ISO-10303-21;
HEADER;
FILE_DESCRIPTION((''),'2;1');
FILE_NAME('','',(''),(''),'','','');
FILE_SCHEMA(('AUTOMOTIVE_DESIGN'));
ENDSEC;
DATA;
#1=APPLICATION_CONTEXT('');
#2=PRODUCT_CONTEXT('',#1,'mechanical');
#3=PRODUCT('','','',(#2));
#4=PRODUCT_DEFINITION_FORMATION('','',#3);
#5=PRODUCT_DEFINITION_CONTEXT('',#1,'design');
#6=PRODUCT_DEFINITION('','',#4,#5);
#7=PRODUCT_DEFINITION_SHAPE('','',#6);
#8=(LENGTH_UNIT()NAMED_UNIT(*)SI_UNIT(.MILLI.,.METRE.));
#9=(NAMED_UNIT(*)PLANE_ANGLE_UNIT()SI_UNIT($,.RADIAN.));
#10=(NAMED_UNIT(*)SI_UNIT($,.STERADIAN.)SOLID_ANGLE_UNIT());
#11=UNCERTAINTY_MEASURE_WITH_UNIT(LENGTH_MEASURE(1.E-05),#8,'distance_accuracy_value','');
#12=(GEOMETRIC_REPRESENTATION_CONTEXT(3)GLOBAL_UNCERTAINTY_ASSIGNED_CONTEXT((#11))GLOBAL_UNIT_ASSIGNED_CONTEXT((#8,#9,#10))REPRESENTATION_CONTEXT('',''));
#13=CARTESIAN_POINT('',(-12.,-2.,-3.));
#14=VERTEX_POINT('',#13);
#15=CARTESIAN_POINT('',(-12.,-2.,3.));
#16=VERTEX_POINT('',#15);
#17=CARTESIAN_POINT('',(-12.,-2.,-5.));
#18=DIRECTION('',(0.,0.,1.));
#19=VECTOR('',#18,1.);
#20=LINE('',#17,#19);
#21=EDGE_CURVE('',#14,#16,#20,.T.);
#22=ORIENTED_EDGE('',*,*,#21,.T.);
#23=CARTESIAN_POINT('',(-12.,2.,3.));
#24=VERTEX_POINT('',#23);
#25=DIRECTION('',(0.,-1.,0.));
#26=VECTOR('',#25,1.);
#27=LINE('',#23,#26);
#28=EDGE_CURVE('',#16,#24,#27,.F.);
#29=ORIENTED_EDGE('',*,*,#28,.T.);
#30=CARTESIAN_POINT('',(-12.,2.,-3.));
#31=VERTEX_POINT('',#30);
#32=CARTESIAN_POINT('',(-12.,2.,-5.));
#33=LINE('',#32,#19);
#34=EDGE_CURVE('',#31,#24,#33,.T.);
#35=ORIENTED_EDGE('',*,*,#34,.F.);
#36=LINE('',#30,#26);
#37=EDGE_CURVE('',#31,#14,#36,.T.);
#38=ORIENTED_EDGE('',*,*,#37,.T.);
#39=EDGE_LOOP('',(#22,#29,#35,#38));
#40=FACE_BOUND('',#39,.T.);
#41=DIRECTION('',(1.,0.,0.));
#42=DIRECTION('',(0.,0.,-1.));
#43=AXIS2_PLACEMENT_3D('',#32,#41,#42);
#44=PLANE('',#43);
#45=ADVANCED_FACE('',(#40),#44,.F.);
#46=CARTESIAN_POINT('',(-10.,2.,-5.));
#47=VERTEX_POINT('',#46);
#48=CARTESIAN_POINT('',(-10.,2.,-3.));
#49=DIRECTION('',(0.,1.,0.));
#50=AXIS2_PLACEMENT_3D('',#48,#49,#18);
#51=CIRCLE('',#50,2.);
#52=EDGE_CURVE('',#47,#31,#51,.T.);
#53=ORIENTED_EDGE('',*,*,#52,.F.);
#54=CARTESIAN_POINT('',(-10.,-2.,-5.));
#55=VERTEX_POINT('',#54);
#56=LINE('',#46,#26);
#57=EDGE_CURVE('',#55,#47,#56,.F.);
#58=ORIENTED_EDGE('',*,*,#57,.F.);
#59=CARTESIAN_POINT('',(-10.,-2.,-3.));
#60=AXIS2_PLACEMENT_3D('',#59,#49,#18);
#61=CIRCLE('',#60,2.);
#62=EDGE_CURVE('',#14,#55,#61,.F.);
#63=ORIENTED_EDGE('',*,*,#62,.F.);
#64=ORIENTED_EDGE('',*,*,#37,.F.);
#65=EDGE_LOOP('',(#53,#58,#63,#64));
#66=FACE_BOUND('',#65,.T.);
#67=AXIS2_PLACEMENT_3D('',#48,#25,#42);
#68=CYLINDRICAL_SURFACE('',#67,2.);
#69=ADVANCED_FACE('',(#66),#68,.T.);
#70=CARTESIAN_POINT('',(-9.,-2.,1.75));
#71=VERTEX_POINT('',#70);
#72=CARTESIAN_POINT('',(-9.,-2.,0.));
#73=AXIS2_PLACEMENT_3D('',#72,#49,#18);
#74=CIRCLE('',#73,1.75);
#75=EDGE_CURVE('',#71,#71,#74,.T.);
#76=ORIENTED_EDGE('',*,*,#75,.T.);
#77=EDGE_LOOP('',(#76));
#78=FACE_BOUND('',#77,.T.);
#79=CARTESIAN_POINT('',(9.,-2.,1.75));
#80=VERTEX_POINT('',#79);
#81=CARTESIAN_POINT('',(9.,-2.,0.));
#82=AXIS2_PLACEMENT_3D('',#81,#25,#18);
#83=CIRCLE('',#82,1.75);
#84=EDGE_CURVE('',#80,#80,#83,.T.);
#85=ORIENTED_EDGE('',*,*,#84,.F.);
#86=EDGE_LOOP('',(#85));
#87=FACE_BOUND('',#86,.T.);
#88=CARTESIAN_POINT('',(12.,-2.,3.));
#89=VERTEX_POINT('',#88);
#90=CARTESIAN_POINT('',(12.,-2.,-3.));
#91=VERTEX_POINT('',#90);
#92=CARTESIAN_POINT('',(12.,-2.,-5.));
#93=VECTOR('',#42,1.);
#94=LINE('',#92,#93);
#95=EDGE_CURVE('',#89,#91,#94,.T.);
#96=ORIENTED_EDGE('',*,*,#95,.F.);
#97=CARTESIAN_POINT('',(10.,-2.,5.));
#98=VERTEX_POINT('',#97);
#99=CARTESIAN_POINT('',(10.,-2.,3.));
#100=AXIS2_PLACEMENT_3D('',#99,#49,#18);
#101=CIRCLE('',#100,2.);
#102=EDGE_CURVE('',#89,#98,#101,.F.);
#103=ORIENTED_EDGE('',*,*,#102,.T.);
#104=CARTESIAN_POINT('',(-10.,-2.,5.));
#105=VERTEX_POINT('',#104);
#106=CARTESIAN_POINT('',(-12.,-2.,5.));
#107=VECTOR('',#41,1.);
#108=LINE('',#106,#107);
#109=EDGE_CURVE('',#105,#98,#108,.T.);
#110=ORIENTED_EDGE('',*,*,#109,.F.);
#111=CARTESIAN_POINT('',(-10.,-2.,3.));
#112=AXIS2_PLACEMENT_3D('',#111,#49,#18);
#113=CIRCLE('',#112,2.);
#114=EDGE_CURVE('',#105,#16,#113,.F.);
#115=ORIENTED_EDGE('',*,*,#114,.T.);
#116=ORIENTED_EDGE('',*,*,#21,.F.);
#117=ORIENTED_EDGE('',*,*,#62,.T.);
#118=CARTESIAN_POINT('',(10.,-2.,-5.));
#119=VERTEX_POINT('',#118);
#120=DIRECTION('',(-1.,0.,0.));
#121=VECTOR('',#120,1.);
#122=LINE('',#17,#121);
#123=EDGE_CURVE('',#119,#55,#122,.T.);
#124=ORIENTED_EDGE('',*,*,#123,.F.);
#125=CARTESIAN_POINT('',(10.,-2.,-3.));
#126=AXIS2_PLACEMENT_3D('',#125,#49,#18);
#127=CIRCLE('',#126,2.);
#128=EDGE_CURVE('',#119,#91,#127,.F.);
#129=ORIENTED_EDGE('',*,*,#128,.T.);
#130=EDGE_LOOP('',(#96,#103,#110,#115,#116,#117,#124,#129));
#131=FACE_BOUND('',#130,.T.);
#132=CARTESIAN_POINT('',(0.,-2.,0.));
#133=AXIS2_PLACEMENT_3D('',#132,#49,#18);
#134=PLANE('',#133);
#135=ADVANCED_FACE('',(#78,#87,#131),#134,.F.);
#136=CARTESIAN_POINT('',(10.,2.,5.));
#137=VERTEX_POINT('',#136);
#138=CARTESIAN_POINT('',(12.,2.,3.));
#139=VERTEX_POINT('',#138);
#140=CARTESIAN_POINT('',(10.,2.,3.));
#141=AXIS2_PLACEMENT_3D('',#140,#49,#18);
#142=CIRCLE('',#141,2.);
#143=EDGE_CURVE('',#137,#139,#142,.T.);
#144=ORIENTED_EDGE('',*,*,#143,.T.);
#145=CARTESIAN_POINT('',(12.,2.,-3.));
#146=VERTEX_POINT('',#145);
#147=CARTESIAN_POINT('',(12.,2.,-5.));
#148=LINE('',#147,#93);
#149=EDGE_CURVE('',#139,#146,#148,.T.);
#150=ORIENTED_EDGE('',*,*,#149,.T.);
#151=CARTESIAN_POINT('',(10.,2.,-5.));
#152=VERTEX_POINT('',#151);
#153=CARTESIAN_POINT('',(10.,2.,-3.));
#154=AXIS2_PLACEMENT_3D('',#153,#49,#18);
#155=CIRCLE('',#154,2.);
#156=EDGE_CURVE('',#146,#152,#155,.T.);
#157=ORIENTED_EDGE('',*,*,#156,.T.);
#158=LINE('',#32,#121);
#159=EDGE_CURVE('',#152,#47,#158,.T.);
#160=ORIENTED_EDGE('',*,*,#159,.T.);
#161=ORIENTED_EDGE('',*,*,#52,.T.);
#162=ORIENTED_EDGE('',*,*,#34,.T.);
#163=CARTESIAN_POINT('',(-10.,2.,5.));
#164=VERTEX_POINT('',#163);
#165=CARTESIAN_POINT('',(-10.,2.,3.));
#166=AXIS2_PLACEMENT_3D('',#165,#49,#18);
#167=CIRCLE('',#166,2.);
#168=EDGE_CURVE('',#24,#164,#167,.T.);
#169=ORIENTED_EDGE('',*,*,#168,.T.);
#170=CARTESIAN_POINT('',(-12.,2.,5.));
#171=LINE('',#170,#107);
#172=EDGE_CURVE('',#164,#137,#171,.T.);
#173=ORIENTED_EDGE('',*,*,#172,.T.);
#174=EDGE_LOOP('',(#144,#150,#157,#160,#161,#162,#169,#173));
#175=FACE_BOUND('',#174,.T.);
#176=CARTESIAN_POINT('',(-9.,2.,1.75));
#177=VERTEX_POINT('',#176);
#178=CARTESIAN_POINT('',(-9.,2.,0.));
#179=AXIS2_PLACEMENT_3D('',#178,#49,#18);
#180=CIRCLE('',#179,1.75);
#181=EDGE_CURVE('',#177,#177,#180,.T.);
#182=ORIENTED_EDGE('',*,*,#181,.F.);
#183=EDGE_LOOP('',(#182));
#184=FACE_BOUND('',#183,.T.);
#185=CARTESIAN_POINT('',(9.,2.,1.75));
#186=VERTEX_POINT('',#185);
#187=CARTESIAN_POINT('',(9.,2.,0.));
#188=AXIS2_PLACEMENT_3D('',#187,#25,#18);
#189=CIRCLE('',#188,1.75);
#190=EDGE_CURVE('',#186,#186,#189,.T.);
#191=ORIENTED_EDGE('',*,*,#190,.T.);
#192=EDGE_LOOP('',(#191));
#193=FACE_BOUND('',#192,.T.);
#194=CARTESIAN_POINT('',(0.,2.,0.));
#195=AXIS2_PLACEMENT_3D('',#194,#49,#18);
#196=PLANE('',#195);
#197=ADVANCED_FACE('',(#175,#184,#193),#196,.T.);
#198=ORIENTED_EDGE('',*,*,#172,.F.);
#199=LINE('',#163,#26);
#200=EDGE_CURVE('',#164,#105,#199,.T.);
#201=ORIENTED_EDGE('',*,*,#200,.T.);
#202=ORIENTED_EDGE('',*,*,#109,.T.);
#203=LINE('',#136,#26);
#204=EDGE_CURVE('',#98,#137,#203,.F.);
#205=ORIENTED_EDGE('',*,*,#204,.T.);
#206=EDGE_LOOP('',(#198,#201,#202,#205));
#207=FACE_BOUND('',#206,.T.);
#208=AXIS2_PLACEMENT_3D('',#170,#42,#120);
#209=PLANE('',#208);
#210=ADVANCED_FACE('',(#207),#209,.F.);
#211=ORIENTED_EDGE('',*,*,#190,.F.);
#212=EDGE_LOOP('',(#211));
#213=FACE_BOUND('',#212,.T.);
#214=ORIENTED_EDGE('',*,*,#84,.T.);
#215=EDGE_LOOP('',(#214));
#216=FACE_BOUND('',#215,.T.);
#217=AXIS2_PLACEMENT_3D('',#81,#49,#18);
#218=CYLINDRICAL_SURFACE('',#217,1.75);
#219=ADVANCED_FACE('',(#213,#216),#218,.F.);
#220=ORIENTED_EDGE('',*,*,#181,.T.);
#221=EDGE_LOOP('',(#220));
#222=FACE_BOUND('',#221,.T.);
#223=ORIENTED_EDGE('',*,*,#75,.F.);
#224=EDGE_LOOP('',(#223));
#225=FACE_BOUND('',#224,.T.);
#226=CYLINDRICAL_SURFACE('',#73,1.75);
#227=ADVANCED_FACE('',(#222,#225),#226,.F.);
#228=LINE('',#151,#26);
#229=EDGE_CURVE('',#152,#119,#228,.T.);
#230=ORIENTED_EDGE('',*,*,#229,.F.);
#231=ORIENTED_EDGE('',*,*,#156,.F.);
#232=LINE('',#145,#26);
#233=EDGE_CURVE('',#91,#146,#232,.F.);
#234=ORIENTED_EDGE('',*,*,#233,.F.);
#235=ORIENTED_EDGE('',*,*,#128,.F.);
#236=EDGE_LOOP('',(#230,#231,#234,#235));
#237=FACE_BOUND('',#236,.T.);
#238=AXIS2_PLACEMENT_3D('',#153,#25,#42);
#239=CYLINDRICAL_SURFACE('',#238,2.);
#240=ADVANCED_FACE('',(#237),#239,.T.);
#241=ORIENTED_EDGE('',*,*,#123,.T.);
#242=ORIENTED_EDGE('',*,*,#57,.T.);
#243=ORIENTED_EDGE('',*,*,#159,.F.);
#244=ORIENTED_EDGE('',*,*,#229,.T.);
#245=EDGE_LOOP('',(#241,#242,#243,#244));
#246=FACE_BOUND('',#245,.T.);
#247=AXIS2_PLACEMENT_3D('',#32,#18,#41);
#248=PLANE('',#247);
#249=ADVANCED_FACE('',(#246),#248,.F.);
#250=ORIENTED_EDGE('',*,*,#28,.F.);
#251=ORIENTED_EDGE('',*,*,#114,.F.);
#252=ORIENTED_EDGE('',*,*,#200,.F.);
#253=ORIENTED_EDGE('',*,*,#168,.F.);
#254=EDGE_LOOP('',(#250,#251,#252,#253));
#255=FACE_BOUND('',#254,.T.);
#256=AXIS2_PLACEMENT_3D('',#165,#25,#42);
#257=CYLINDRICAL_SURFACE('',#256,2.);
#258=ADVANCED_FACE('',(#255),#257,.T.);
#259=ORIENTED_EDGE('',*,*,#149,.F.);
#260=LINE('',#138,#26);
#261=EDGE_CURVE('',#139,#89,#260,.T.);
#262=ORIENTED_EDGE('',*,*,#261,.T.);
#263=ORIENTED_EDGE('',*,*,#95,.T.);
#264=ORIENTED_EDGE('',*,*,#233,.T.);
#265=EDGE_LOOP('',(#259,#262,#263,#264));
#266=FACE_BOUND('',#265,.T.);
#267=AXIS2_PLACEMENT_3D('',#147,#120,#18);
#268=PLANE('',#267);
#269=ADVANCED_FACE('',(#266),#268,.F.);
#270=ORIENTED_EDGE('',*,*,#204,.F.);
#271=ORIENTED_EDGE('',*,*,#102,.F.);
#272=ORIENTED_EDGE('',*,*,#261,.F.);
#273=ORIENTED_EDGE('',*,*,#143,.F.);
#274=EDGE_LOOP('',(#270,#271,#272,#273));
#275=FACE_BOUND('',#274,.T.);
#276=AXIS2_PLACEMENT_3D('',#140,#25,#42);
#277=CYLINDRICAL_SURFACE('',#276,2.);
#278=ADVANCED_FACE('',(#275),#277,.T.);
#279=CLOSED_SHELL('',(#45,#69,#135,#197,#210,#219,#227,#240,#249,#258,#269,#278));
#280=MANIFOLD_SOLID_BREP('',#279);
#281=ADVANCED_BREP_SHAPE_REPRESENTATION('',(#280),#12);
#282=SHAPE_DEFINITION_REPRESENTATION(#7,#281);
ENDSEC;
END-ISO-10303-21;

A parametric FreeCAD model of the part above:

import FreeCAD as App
import Part
import Sketcher

V = App.Vector
Q = App.Units.Quantity


def edges_at(feature, points):
    """Names of the edges that pass closest to the given points."""
    edges = feature.Shape.Edges
    near = lambda p: min(range(len(edges)), key=lambda i: edges[i].distToShape(Part.Vertex(*p))[0])
    return sorted({f"Edge{near(p) + 1}" for p in points})


def add_polygon(sketch, points):
    """Adds a closed chain of lines whose ends are joined by coincident constraints."""
    first, n = sketch.GeometryCount, len(points)
    for a, b in zip(points, points[1:] + points[:1]):
        sketch.addGeometry(Part.LineSegment(App.Vector(*a, 0), App.Vector(*b, 0)), False)
    for i in range(n):
        sketch.addConstraint(Sketcher.Constraint("Coincident", first + i, 2, first + (i + 1) % n, 1))

doc = App.newDocument("Part")
body = doc.addObject("PartDesign::Body", "Body")

# Sketch on XZ plane
sketch1 = body.newObject("Sketcher::SketchObject", "Sketch")
sketch1.AttachmentSupport = (doc.getObject("XZ_Plane"), [""])
sketch1.MapMode = "FlatFace"
add_polygon(sketch1, [(-12, -5), (-12, 5), (12, 5), (12, -5)])  # lines 0-3
sketch1.addConstraint(Sketcher.Constraint("Vertical", 0))
sketch1.addConstraint(Sketcher.Constraint("Horizontal", 1))
sketch1.addConstraint(Sketcher.Constraint("Vertical", 2))
sketch1.addConstraint(Sketcher.Constraint("Horizontal", 3))
sketch1.addConstraint(Sketcher.Constraint("Symmetric", 0, 2, 2, 2, -1, 1))
sketch1.addConstraint(Sketcher.Constraint("DistanceX", 1, 1, 1, 2, Q("24 mm")))
sketch1.addConstraint(Sketcher.Constraint("DistanceY", 0, 1, 0, 2, Q("10 mm")))
pad1 = body.newObject("PartDesign::Pad", "Pad")
pad1.Profile = sketch1
pad1.Length = 4
pad1.Midplane = True

# Sketch on XZ plane
sketch2 = body.newObject("Sketcher::SketchObject", "Sketch001")
sketch2.AttachmentSupport = (doc.getObject("XZ_Plane"), [""])
sketch2.MapMode = "FlatFace"
sketch2.AttachmentOffset = App.Placement(V(0, 0, -2), App.Rotation())
sketch2.addGeometry(Part.Circle(V(-9, 0, 0), V(0, 0, 1), 1.8), False)
sketch2.addConstraint(Sketcher.Constraint("PointOnObject", 0, 3, -1))
sketch2.addConstraint(Sketcher.Constraint("Diameter", 0, Q("3.5 mm")))
sketch2.addConstraint(Sketcher.Constraint("DistanceX", 0, 3, -1, 1, Q("9 mm")))
pocket1 = body.newObject("PartDesign::Pocket", "Pocket")
pocket1.Profile = sketch2
pocket1.Type = "ThroughAll"
pocket1.Reversed = True
doc.recompute()

mirrored = body.newObject("PartDesign::Mirrored", "Mirrored")
mirrored.Originals = [pocket1]
mirrored.MirrorPlane = (doc.getObject("YZ_Plane"), [""])
body.Tip = mirrored
doc.recompute()

fillet = body.newObject("PartDesign::Fillet", "Fillet")
fillet.Base = (mirrored, edges_at(mirrored, [
    (12, 0, 5),
    (-12, 0, 5),
    (-12, 0, -5),
    (12, 0, -5),
]))
fillet.Radius = 2

doc.recompute()
